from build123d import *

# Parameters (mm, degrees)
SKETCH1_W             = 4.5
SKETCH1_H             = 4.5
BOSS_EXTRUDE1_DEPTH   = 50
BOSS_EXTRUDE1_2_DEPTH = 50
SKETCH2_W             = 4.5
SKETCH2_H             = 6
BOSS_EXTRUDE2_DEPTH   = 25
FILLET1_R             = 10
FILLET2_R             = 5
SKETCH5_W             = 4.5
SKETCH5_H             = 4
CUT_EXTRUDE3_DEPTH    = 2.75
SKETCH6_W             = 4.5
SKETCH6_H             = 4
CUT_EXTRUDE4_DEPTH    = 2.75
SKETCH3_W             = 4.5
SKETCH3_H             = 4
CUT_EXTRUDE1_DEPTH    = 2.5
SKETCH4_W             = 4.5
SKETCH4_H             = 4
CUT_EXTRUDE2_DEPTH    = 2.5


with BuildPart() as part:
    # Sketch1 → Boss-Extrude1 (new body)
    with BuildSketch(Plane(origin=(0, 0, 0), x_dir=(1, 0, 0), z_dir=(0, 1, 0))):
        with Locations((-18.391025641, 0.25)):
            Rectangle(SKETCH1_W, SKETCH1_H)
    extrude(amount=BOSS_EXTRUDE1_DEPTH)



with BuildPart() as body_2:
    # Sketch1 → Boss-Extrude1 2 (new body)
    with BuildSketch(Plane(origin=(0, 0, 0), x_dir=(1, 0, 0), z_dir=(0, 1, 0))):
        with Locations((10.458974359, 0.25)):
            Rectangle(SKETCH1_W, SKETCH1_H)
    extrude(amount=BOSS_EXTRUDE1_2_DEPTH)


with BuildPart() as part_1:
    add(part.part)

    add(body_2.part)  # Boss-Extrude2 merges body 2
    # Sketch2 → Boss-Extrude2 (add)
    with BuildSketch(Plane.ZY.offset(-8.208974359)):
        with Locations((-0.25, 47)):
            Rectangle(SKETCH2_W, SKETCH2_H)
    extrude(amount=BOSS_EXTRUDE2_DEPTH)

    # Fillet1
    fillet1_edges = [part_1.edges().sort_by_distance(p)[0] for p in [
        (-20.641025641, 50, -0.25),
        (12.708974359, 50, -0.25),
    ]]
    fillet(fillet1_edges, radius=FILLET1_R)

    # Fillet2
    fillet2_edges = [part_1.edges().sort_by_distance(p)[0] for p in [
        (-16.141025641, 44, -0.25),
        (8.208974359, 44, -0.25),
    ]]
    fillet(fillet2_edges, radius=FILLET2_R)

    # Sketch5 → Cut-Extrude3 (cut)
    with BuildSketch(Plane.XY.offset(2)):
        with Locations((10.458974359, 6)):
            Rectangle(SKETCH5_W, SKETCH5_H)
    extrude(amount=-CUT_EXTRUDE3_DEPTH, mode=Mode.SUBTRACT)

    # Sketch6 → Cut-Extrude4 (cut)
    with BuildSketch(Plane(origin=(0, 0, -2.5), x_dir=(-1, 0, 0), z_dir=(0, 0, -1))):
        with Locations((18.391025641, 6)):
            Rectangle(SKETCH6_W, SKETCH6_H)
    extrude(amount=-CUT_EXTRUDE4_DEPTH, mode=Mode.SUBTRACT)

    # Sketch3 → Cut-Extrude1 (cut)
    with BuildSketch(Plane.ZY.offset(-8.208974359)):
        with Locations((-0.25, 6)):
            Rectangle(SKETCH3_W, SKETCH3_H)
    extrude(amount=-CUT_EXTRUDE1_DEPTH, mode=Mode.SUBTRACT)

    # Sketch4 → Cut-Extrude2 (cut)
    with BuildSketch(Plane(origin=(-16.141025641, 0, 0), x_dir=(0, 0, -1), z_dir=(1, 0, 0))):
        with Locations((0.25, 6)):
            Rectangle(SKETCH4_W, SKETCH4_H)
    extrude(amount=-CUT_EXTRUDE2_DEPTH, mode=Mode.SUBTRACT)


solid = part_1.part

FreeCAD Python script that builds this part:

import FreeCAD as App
import Part
import Sketcher
Q = App.Units.Quantity


def edges_at(feature, points):
    """Names of the edges that pass closest to the given points."""
    edges = feature.Shape.Edges
    near = lambda p: min(range(len(edges)), key=lambda i: edges[i].distToShape(Part.Vertex(*p))[0])
    return sorted({f"Edge{near(p) + 1}" for p in points})

doc = App.newDocument("Part")
params = doc.addObject("Spreadsheet::Sheet", "Params")
for row, (alias, value) in enumerate([
    ("sketch1_width", "4.5 mm"),
    ("pad1_length", "50 mm"),
    ("sketch2_width", "4.5 mm"),
    ("pad2_length", "50 mm"),
    ("sketch3_width", "6 mm"),
    ("sketch3_height", "4.5 mm"),
    ("pad3_length", "25 mm"),
    ("fillet_radius", "10 mm"),
    ("fillet2_radius", "5 mm"),
    ("sketch4_height", "4 mm"),
    ("sketch4_width", "4.5 mm"),
    ("pocket1_length", "2.75 mm"),
    ("sketch5_height", "4 mm"),
    ("sketch5_width", "4.5 mm"),
    ("pocket2_length", "2.75 mm"),
    ("sketch6_width", "4 mm"),
    ("sketch6_height", "4.5 mm"),
    ("pocket3_length", "2.5 mm"),
    ("sketch7_width", "4 mm"),
    ("sketch7_height", "4.5 mm"),
    ("pocket4_length", "2.5 mm"),
], start=1):
    params.set(f"A{row}", alias)
    params.set(f"B{row}", "=" + value)
    params.setAlias(f"B{row}", alias)

body = doc.addObject("PartDesign::Body", "Body")

# Sketch on XZ plane
sketch1 = body.newObject("Sketcher::SketchObject", "Sketch")
sketch1.AttachmentSupport = (doc.getObject("XZ_Plane"), [""])
sketch1.MapMode = "FlatFace"
sketch1.addGeometry(Part.LineSegment(App.Vector(-20.6, -2.5, 0), App.Vector(-20.6, 2, 0)), False)
sketch1.addGeometry(Part.LineSegment(App.Vector(-20.6, 2, 0), App.Vector(-16.1, 2, 0)), False)
sketch1.addGeometry(Part.LineSegment(App.Vector(-16.1, 2, 0), App.Vector(-16.1, -2.5, 0)), False)
sketch1.addGeometry(Part.LineSegment(App.Vector(-16.1, -2.5, 0), App.Vector(-20.6, -2.5, 0)), False)
sketch1.addConstraint(Sketcher.Constraint("Coincident", 0, 2, 1, 1))
sketch1.addConstraint(Sketcher.Constraint("Coincident", 1, 2, 2, 1))
sketch1.addConstraint(Sketcher.Constraint("Coincident", 2, 2, 3, 1))
sketch1.addConstraint(Sketcher.Constraint("Coincident", 3, 2, 0, 1))
sketch1.addConstraint(Sketcher.Constraint("Vertical", 0))
sketch1.addConstraint(Sketcher.Constraint("Horizontal", 1))
sketch1.addConstraint(Sketcher.Constraint("Vertical", 2))
sketch1.addConstraint(Sketcher.Constraint("Horizontal", 3))
sketch1.addConstraint(Sketcher.Constraint("Equal", 3, 0))
sketch1.addConstraint(Sketcher.Constraint("DistanceX", 1, 1, 1, 2, Q("4.5 mm")))
sketch1.addConstraint(Sketcher.Constraint("DistanceY", -1, 1, 0, 2, Q("2 mm")))
sketch1.addConstraint(Sketcher.Constraint("DistanceX", 0, 2, -1, 1, Q("20.641026 mm")))
sketch1.setExpression("Constraints[9]", "Params.sketch1_width")
pad1 = body.newObject("PartDesign::Pad", "Pad")
pad1.Profile = sketch1
pad1.setExpression("Length", "Params.pad1_length")
pad1.Reversed = True
body2 = doc.addObject("PartDesign::Body", "Body001")

# Sketch on XZ plane
sketch2 = body2.newObject("Sketcher::SketchObject", "Sketch001")
sketch2.AttachmentSupport = (doc.getObject("XZ_Plane001"), [""])
sketch2.MapMode = "FlatFace"
sketch2.addGeometry(Part.LineSegment(App.Vector(8.2, -2.5, 0), App.Vector(8.2, 2, 0)), False)
sketch2.addGeometry(Part.LineSegment(App.Vector(8.2, 2, 0), App.Vector(12.7, 2, 0)), False)
sketch2.addGeometry(Part.LineSegment(App.Vector(12.7, 2, 0), App.Vector(12.7, -2.5, 0)), False)
sketch2.addGeometry(Part.LineSegment(App.Vector(12.7, -2.5, 0), App.Vector(8.2, -2.5, 0)), False)
sketch2.addConstraint(Sketcher.Constraint("Coincident", 0, 2, 1, 1))
sketch2.addConstraint(Sketcher.Constraint("Coincident", 1, 2, 2, 1))
sketch2.addConstraint(Sketcher.Constraint("Coincident", 2, 2, 3, 1))
sketch2.addConstraint(Sketcher.Constraint("Coincident", 3, 2, 0, 1))
sketch2.addConstraint(Sketcher.Constraint("Vertical", 0))
sketch2.addConstraint(Sketcher.Constraint("Horizontal", 1))
sketch2.addConstraint(Sketcher.Constraint("Vertical", 2))
sketch2.addConstraint(Sketcher.Constraint("Horizontal", 3))
sketch2.addConstraint(Sketcher.Constraint("Equal", 3, 0))
sketch2.addConstraint(Sketcher.Constraint("DistanceX", 1, 1, 1, 2, Q("4.5 mm")))
sketch2.addConstraint(Sketcher.Constraint("DistanceY", -1, 1, 0, 2, Q("2 mm")))
sketch2.addConstraint(Sketcher.Constraint("DistanceX", -1, 1, 0, 2, Q("8.208974 mm")))
sketch2.setExpression("Constraints[9]", "Params.sketch2_width")
pad2 = body2.newObject("PartDesign::Pad", "Pad001")
pad2.Profile = sketch2
pad2.setExpression("Length", "Params.pad2_length")
pad2.Reversed = True
body.AllowCompound = True
doc.recompute()

boolean = body.newObject("PartDesign::Boolean", "Boolean")
boolean.Type = "Fuse"
boolean.addObjects([body2])

# Sketch on YZ plane
sketch3 = body.newObject("Sketcher::SketchObject", "Sketch002")
sketch3.AttachmentSupport = (doc.getObject("YZ_Plane"), [""])
sketch3.MapMode = "FlatFace"
sketch3.AttachmentOffset = App.Placement(App.Vector(0, 0, 8.208974), App.Rotation())
sketch3.addGeometry(Part.LineSegment(App.Vector(50, -2.5, 0), App.Vector(44, -2.5, 0)), False)
sketch3.addGeometry(Part.LineSegment(App.Vector(44, -2.5, 0), App.Vector(44, 2, 0)), False)
sketch3.addGeometry(Part.LineSegment(App.Vector(44, 2, 0), App.Vector(50, 2, 0)), False)
sketch3.addGeometry(Part.LineSegment(App.Vector(50, 2, 0), App.Vector(50, -2.5, 0)), False)
sketch3.addConstraint(Sketcher.Constraint("Coincident", 0, 2, 1, 1))
sketch3.addConstraint(Sketcher.Constraint("Coincident", 1, 2, 2, 1))
sketch3.addConstraint(Sketcher.Constraint("Coincident", 2, 2, 3, 1))
sketch3.addConstraint(Sketcher.Constraint("Coincident", 3, 2, 0, 1))
sketch3.addConstraint(Sketcher.Constraint("Horizontal", 0))
sketch3.addConstraint(Sketcher.Constraint("Vertical", 1))
sketch3.addConstraint(Sketcher.Constraint("Horizontal", 2))
sketch3.addConstraint(Sketcher.Constraint("Vertical", 3))
sketch3.addConstraint(Sketcher.Constraint("DistanceX", 0, 2, 0, 1, Q("6 mm")))
sketch3.addConstraint(Sketcher.Constraint("DistanceY", 1, 1, 1, 2, Q("4.5 mm")))
sketch3.addConstraint(Sketcher.Constraint("DistanceX", -1, 1, 0, 2, Q("44 mm")))
sketch3.addConstraint(Sketcher.Constraint("DistanceY", -1, 1, 1, 2, Q("2 mm")))
sketch3.setExpression("Constraints[8]", "Params.sketch3_width")
sketch3.setExpression("Constraints[9]", "Params.sketch3_height")
pad3 = body.newObject("PartDesign::Pad", "Pad002")
pad3.Profile = sketch3
pad3.setExpression("Length", "Params.pad3_length")
pad3.Reversed = True
doc.recompute()

fillet = body.newObject("PartDesign::Fillet", "Fillet")
fillet.Base = (pad3, edges_at(pad3, [(-20.641, 50, -0.25), (12.709, 50, -0.25)]))
fillet.setExpression("Radius", "Params.fillet_radius")
doc.recompute()

fillet2 = body.newObject("PartDesign::Fillet", "Fillet001")
fillet2.Base = (fillet, edges_at(fillet, [(-16.141, 44, -0.25), (8.209, 44, -0.25)]))
fillet2.setExpression("Radius", "Params.fillet2_radius")

# Sketch on XY plane
sketch4 = body.newObject("Sketcher::SketchObject", "Sketch003")
sketch4.AttachmentSupport = (doc.getObject("XY_Plane"), [""])
sketch4.MapMode = "FlatFace"
sketch4.AttachmentOffset = App.Placement(App.Vector(0, 0, 2), App.Rotation())
sketch4.addGeometry(Part.LineSegment(App.Vector(8.2, 8, 0), App.Vector(8.2, 4, 0)), False)
sketch4.addGeometry(Part.LineSegment(App.Vector(8.2, 4, 0), App.Vector(12.7, 4, 0)), False)
sketch4.addGeometry(Part.LineSegment(App.Vector(12.7, 4, 0), App.Vector(12.7, 8, 0)), False)
sketch4.addGeometry(Part.LineSegment(App.Vector(12.7, 8, 0), App.Vector(8.2, 8, 0)), False)
sketch4.addConstraint(Sketcher.Constraint("Coincident", 0, 2, 1, 1))
sketch4.addConstraint(Sketcher.Constraint("Coincident", 1, 2, 2, 1))
sketch4.addConstraint(Sketcher.Constraint("Coincident", 2, 2, 3, 1))
sketch4.addConstraint(Sketcher.Constraint("Coincident", 3, 2, 0, 1))
sketch4.addConstraint(Sketcher.Constraint("Vertical", 0))
sketch4.addConstraint(Sketcher.Constraint("Horizontal", 1))
sketch4.addConstraint(Sketcher.Constraint("Vertical", 2))
sketch4.addConstraint(Sketcher.Constraint("Horizontal", 3))
sketch4.addConstraint(Sketcher.Constraint("DistanceY", 0, 2, 0, 1, Q("4 mm")))
sketch4.addConstraint(Sketcher.Constraint("DistanceX", 1, 1, 1, 2, Q("4.5 mm")))
sketch4.addConstraint(Sketcher.Constraint("DistanceY", -1, 1, 0, 2, Q("4 mm")))
sketch4.addConstraint(Sketcher.Constraint("DistanceX", -1, 1, 0, 2, Q("8.208974 mm")))
sketch4.setExpression("Constraints[8]", "Params.sketch4_height")
sketch4.setExpression("Constraints[9]", "Params.sketch4_width")
pocket1 = body.newObject("PartDesign::Pocket", "Pocket")
pocket1.Profile = sketch4
pocket1.setExpression("Length", "Params.pocket1_length")

# Sketch on XY plane
sketch5 = body.newObject("Sketcher::SketchObject", "Sketch004")
sketch5.AttachmentSupport = (doc.getObject("XY_Plane"), [""])
sketch5.MapMode = "FlatFace"
sketch5.AttachmentOffset = App.Placement(App.Vector(0, 0, -2.5), App.Rotation())
sketch5.addGeometry(Part.LineSegment(App.Vector(-16.1, 8, 0), App.Vector(-16.1, 4, 0)), False)
sketch5.addGeometry(Part.LineSegment(App.Vector(-16.1, 4, 0), App.Vector(-20.6, 4, 0)), False)
sketch5.addGeometry(Part.LineSegment(App.Vector(-20.6, 4, 0), App.Vector(-20.6, 8, 0)), False)
sketch5.addGeometry(Part.LineSegment(App.Vector(-20.6, 8, 0), App.Vector(-16.1, 8, 0)), False)
sketch5.addConstraint(Sketcher.Constraint("Coincident", 0, 2, 1, 1))
sketch5.addConstraint(Sketcher.Constraint("Coincident", 1, 2, 2, 1))
sketch5.addConstraint(Sketcher.Constraint("Coincident", 2, 2, 3, 1))
sketch5.addConstraint(Sketcher.Constraint("Coincident", 3, 2, 0, 1))
sketch5.addConstraint(Sketcher.Constraint("Vertical", 0))
sketch5.addConstraint(Sketcher.Constraint("Horizontal", 1))
sketch5.addConstraint(Sketcher.Constraint("Vertical", 2))
sketch5.addConstraint(Sketcher.Constraint("Horizontal", 3))
sketch5.addConstraint(Sketcher.Constraint("DistanceY", 0, 2, 0, 1, Q("4 mm")))
sketch5.addConstraint(Sketcher.Constraint("DistanceX", 1, 2, 1, 1, Q("4.5 mm")))
sketch5.addConstraint(Sketcher.Constraint("DistanceY", -1, 1, 0, 2, Q("4 mm")))
sketch5.addConstraint(Sketcher.Constraint("DistanceX", 0, 2, -1, 1, Q("16.141026 mm")))
sketch5.setExpression("Constraints[8]", "Params.sketch5_height")
sketch5.setExpression("Constraints[9]", "Params.sketch5_width")
pocket2 = body.newObject("PartDesign::Pocket", "Pocket001")
pocket2.Profile = sketch5
pocket2.setExpression("Length", "Params.pocket2_length")
pocket2.Reversed = True

# Sketch on YZ plane
sketch6 = body.newObject("Sketcher::SketchObject", "Sketch005")
sketch6.AttachmentSupport = (doc.getObject("YZ_Plane"), [""])
sketch6.MapMode = "FlatFace"
sketch6.AttachmentOffset = App.Placement(App.Vector(0, 0, 8.208974), App.Rotation())
sketch6.addGeometry(Part.LineSegment(App.Vector(8, -2.5, 0), App.Vector(4, -2.5, 0)), False)
sketch6.addGeometry(Part.LineSegment(App.Vector(4, -2.5, 0), App.Vector(4, 2, 0)), False)
sketch6.addGeometry(Part.LineSegment(App.Vector(4, 2, 0), App.Vector(8, 2, 0)), False)
sketch6.addGeometry(Part.LineSegment(App.Vector(8, 2, 0), App.Vector(8, -2.5, 0)), False)
sketch6.addConstraint(Sketcher.Constraint("Coincident", 0, 2, 1, 1))
sketch6.addConstraint(Sketcher.Constraint("Coincident", 1, 2, 2, 1))
sketch6.addConstraint(Sketcher.Constraint("Coincident", 2, 2, 3, 1))
sketch6.addConstraint(Sketcher.Constraint("Coincident", 3, 2, 0, 1))
sketch6.addConstraint(Sketcher.Constraint("Horizontal", 0))
sketch6.addConstraint(Sketcher.Constraint("Vertical", 1))
sketch6.addConstraint(Sketcher.Constraint("Horizontal", 2))
sketch6.addConstraint(Sketcher.Constraint("Vertical", 3))
sketch6.addConstraint(Sketcher.Constraint("DistanceX", 0, 2, 0, 1, Q("4 mm")))
sketch6.addConstraint(Sketcher.Constraint("DistanceY", 1, 1, 1, 2, Q("4.5 mm")))
sketch6.addConstraint(Sketcher.Constraint("DistanceX", -1, 1, 0, 2, Q("4 mm")))
sketch6.addConstraint(Sketcher.Constraint("DistanceY", -1, 1, 1, 2, Q("2 mm")))
sketch6.setExpression("Constraints[8]", "Params.sketch6_width")
sketch6.setExpression("Constraints[9]", "Params.sketch6_height")
pocket3 = body.newObject("PartDesign::Pocket", "Pocket002")
pocket3.Profile = sketch6
pocket3.setExpression("Length", "Params.pocket3_length")
pocket3.Reversed = True

# Sketch on YZ plane
sketch7 = body.newObject("Sketcher::SketchObject", "Sketch006")
sketch7.AttachmentSupport = (doc.getObject("YZ_Plane"), [""])
sketch7.MapMode = "FlatFace"
sketch7.AttachmentOffset = App.Placement(App.Vector(0, 0, -16.141026), App.Rotation())
sketch7.addGeometry(Part.LineSegment(App.Vector(8, 2, 0), App.Vector(4, 2, 0)), False)
sketch7.addGeometry(Part.LineSegment(App.Vector(4, 2, 0), App.Vector(4, -2.5, 0)), False)
sketch7.addGeometry(Part.LineSegment(App.Vector(4, -2.5, 0), App.Vector(8, -2.5, 0)), False)
sketch7.addGeometry(Part.LineSegment(App.Vector(8, -2.5, 0), App.Vector(8, 2, 0)), False)
sketch7.addConstraint(Sketcher.Constraint("Coincident", 0, 2, 1, 1))
sketch7.addConstraint(Sketcher.Constraint("Coincident", 1, 2, 2, 1))
sketch7.addConstraint(Sketcher.Constraint("Coincident", 2, 2, 3, 1))
sketch7.addConstraint(Sketcher.Constraint("Coincident", 3, 2, 0, 1))
sketch7.addConstraint(Sketcher.Constraint("Horizontal", 0))
sketch7.addConstraint(Sketcher.Constraint("Vertical", 1))
sketch7.addConstraint(Sketcher.Constraint("Horizontal", 2))
sketch7.addConstraint(Sketcher.Constraint("Vertical", 3))
sketch7.addConstraint(Sketcher.Constraint("DistanceX", 0, 2, 0, 1, Q("4 mm")))
sketch7.addConstraint(Sketcher.Constraint("DistanceY", 1, 2, 1, 1, Q("4.5 mm")))
sketch7.addConstraint(Sketcher.Constraint("DistanceX", -1, 1, 0, 2, Q("4 mm")))
sketch7.addConstraint(Sketcher.Constraint("DistanceY", -1, 1, 0, 2, Q("2 mm")))
sketch7.setExpression("Constraints[8]", "Params.sketch7_width")
sketch7.setExpression("Constraints[9]", "Params.sketch7_height")
pocket4 = body.newObject("PartDesign::Pocket", "Pocket003")
pocket4.Profile = sketch7
pocket4.setExpression("Length", "Params.pocket4_length")

doc.recompute()
